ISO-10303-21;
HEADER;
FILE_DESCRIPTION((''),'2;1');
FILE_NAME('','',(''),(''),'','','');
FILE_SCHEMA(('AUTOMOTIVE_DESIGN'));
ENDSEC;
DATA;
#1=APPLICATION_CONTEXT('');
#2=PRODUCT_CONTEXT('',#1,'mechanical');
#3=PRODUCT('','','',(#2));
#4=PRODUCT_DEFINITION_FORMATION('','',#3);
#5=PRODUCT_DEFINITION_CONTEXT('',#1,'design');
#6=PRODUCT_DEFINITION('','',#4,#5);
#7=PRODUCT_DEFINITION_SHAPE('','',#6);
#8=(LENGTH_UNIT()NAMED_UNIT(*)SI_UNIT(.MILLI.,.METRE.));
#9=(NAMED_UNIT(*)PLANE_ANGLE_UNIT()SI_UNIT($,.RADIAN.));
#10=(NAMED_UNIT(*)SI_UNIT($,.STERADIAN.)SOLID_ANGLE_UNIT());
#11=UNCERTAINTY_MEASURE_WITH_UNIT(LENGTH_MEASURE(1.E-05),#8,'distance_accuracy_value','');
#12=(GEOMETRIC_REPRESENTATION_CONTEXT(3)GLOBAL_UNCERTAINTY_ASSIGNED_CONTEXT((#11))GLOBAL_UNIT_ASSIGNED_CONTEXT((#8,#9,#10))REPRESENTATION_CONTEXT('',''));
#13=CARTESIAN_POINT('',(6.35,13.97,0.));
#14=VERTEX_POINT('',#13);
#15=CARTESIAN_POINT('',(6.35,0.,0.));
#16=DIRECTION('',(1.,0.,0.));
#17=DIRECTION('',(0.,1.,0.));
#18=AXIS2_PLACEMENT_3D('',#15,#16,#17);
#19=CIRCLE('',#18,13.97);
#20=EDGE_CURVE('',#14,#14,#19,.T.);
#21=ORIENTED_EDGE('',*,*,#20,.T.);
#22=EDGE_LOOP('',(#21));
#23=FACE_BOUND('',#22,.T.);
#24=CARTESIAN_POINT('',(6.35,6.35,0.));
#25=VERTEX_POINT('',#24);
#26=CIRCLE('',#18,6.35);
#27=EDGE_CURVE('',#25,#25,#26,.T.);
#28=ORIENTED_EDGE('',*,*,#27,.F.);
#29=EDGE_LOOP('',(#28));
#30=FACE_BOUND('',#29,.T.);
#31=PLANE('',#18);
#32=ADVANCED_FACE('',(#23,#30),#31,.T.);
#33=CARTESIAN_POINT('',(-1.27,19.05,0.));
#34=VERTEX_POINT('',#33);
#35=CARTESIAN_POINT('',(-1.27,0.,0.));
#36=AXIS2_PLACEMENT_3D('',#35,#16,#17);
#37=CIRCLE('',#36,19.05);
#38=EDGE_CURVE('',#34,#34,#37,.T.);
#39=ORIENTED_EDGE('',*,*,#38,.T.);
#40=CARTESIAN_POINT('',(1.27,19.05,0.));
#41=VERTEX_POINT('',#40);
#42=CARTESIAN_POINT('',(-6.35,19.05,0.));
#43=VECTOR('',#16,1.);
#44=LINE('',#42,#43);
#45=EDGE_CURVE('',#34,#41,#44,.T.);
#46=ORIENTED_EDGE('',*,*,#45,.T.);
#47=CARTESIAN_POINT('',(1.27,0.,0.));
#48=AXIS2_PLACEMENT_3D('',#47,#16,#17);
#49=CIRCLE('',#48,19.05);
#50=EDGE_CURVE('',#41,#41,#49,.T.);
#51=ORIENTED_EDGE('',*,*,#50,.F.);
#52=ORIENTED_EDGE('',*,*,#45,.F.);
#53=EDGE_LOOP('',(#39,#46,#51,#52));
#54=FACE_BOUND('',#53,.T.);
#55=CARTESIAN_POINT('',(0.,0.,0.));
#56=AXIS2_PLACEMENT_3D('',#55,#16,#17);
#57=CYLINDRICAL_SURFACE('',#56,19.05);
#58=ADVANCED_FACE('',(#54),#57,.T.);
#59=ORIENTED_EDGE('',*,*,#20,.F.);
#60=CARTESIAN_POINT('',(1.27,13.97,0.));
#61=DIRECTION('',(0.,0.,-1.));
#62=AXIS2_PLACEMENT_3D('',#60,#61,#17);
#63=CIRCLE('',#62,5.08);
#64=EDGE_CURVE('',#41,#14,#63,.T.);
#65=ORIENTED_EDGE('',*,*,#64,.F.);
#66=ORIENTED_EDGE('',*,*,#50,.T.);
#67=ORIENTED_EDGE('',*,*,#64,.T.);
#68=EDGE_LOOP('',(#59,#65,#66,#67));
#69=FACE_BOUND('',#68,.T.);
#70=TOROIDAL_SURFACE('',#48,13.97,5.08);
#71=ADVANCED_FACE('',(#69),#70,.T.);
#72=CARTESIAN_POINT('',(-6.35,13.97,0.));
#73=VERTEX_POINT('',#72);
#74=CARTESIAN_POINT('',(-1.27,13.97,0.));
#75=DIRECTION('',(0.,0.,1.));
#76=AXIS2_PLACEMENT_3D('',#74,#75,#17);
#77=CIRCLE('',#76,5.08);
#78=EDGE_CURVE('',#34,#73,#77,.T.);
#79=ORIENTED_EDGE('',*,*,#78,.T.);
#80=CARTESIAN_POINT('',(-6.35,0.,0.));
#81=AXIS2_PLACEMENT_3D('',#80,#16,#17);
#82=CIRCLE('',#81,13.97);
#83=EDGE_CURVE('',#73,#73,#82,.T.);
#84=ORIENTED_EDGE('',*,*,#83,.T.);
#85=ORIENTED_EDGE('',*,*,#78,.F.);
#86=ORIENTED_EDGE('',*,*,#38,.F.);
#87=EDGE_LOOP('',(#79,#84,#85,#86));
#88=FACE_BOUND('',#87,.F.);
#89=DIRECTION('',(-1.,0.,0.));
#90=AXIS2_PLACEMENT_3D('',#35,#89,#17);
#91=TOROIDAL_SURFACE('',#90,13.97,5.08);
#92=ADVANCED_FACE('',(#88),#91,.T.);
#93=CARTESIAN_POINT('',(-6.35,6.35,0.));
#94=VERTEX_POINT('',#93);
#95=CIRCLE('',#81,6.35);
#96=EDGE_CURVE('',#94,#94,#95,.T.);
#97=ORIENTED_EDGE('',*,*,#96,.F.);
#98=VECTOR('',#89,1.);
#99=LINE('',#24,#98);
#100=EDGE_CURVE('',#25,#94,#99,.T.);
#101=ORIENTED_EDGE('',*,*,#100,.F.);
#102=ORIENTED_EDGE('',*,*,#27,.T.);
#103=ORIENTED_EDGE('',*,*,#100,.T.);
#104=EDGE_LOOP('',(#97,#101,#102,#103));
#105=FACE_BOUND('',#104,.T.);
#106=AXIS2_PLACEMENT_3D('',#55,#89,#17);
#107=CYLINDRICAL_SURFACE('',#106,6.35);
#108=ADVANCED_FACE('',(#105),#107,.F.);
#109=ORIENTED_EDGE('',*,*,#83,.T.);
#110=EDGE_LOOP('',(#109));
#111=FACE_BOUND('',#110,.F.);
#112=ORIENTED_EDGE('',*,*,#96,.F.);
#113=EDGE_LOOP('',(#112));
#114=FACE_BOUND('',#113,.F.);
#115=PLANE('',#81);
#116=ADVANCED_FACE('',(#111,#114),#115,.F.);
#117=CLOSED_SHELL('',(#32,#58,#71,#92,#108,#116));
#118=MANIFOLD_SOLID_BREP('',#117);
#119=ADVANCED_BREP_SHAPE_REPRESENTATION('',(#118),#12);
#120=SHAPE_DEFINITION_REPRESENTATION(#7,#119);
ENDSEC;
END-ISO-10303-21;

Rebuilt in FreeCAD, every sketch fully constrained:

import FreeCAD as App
import Part
import Sketcher
Q = App.Units.Quantity


def edges_at(feature, points):
    """Names of the edges that pass closest to the given points."""
    edges = feature.Shape.Edges
    near = lambda p: min(range(len(edges)), key=lambda i: edges[i].distToShape(Part.Vertex(*p))[0])
    return sorted({f"Edge{near(p) + 1}" for p in points})

doc = App.newDocument("Part")
params = doc.addObject("Spreadsheet::Sheet", "Params")
for row, (alias, value) in enumerate([
    ("sketch1_diameter", "1.5 in"),
    ("sketch1_diameter2", "0.5 in"),
    ("pad1_length", "0.5 in"),
    ("fillet_radius", "0.2 in"),
    ("fillet2_radius", "0.2 in"),
], start=1):
    params.set(f"A{row}", alias)
    params.set(f"B{row}", "=" + value)
    params.setAlias(f"B{row}", alias)

body = doc.addObject("PartDesign::Body", "Body")

sketch1 = body.newObject("Sketcher::SketchObject", "Sketch")
sketch1.AttachmentSupport = (doc.getObject("YZ_Plane"), [""])
sketch1.MapMode = "FlatFace"
sketch1.addGeometry([
    Part.Circle(App.Vector(0, 0, 0), App.Vector(0, 0, 1), 19),
    Part.Circle(App.Vector(0, 0, 0), App.Vector(0, 0, 1), 6),
], False)
sketch1.addConstraint([
    Sketcher.Constraint("Coincident", 0, 3, -1, 1),
    Sketcher.Constraint("Coincident", 1, 3, -1, 1),
    Sketcher.Constraint("Diameter", 0, Q("1.5 in")),
    Sketcher.Constraint("Diameter", 1, Q("0.5 in")),
])
sketch1.setExpression("Constraints[2]", "Params.sketch1_diameter")
sketch1.setExpression("Constraints[3]", "Params.sketch1_diameter2")
pad1 = body.newObject("PartDesign::Pad", "Pad")
pad1.Profile = sketch1
pad1.setExpression("Length", "Params.pad1_length")
pad1.Midplane = True
doc.recompute()

fillet = body.newObject("PartDesign::Fillet", "Fillet")
fillet.Base = (pad1, edges_at(pad1, [(6.35, -19.05, 0)]))
fillet.setExpression("Radius", "Params.fillet_radius")
doc.recompute()

fillet2 = body.newObject("PartDesign::Fillet", "Fillet001")
fillet2.Base = (fillet, edges_at(fillet, [(-2.54, 19.05, 0), (1.27, -19.05, 0), (-6.35, -19.05, 0)]))
fillet2.setExpression("Radius", "Params.fillet2_radius")

doc.recompute()
